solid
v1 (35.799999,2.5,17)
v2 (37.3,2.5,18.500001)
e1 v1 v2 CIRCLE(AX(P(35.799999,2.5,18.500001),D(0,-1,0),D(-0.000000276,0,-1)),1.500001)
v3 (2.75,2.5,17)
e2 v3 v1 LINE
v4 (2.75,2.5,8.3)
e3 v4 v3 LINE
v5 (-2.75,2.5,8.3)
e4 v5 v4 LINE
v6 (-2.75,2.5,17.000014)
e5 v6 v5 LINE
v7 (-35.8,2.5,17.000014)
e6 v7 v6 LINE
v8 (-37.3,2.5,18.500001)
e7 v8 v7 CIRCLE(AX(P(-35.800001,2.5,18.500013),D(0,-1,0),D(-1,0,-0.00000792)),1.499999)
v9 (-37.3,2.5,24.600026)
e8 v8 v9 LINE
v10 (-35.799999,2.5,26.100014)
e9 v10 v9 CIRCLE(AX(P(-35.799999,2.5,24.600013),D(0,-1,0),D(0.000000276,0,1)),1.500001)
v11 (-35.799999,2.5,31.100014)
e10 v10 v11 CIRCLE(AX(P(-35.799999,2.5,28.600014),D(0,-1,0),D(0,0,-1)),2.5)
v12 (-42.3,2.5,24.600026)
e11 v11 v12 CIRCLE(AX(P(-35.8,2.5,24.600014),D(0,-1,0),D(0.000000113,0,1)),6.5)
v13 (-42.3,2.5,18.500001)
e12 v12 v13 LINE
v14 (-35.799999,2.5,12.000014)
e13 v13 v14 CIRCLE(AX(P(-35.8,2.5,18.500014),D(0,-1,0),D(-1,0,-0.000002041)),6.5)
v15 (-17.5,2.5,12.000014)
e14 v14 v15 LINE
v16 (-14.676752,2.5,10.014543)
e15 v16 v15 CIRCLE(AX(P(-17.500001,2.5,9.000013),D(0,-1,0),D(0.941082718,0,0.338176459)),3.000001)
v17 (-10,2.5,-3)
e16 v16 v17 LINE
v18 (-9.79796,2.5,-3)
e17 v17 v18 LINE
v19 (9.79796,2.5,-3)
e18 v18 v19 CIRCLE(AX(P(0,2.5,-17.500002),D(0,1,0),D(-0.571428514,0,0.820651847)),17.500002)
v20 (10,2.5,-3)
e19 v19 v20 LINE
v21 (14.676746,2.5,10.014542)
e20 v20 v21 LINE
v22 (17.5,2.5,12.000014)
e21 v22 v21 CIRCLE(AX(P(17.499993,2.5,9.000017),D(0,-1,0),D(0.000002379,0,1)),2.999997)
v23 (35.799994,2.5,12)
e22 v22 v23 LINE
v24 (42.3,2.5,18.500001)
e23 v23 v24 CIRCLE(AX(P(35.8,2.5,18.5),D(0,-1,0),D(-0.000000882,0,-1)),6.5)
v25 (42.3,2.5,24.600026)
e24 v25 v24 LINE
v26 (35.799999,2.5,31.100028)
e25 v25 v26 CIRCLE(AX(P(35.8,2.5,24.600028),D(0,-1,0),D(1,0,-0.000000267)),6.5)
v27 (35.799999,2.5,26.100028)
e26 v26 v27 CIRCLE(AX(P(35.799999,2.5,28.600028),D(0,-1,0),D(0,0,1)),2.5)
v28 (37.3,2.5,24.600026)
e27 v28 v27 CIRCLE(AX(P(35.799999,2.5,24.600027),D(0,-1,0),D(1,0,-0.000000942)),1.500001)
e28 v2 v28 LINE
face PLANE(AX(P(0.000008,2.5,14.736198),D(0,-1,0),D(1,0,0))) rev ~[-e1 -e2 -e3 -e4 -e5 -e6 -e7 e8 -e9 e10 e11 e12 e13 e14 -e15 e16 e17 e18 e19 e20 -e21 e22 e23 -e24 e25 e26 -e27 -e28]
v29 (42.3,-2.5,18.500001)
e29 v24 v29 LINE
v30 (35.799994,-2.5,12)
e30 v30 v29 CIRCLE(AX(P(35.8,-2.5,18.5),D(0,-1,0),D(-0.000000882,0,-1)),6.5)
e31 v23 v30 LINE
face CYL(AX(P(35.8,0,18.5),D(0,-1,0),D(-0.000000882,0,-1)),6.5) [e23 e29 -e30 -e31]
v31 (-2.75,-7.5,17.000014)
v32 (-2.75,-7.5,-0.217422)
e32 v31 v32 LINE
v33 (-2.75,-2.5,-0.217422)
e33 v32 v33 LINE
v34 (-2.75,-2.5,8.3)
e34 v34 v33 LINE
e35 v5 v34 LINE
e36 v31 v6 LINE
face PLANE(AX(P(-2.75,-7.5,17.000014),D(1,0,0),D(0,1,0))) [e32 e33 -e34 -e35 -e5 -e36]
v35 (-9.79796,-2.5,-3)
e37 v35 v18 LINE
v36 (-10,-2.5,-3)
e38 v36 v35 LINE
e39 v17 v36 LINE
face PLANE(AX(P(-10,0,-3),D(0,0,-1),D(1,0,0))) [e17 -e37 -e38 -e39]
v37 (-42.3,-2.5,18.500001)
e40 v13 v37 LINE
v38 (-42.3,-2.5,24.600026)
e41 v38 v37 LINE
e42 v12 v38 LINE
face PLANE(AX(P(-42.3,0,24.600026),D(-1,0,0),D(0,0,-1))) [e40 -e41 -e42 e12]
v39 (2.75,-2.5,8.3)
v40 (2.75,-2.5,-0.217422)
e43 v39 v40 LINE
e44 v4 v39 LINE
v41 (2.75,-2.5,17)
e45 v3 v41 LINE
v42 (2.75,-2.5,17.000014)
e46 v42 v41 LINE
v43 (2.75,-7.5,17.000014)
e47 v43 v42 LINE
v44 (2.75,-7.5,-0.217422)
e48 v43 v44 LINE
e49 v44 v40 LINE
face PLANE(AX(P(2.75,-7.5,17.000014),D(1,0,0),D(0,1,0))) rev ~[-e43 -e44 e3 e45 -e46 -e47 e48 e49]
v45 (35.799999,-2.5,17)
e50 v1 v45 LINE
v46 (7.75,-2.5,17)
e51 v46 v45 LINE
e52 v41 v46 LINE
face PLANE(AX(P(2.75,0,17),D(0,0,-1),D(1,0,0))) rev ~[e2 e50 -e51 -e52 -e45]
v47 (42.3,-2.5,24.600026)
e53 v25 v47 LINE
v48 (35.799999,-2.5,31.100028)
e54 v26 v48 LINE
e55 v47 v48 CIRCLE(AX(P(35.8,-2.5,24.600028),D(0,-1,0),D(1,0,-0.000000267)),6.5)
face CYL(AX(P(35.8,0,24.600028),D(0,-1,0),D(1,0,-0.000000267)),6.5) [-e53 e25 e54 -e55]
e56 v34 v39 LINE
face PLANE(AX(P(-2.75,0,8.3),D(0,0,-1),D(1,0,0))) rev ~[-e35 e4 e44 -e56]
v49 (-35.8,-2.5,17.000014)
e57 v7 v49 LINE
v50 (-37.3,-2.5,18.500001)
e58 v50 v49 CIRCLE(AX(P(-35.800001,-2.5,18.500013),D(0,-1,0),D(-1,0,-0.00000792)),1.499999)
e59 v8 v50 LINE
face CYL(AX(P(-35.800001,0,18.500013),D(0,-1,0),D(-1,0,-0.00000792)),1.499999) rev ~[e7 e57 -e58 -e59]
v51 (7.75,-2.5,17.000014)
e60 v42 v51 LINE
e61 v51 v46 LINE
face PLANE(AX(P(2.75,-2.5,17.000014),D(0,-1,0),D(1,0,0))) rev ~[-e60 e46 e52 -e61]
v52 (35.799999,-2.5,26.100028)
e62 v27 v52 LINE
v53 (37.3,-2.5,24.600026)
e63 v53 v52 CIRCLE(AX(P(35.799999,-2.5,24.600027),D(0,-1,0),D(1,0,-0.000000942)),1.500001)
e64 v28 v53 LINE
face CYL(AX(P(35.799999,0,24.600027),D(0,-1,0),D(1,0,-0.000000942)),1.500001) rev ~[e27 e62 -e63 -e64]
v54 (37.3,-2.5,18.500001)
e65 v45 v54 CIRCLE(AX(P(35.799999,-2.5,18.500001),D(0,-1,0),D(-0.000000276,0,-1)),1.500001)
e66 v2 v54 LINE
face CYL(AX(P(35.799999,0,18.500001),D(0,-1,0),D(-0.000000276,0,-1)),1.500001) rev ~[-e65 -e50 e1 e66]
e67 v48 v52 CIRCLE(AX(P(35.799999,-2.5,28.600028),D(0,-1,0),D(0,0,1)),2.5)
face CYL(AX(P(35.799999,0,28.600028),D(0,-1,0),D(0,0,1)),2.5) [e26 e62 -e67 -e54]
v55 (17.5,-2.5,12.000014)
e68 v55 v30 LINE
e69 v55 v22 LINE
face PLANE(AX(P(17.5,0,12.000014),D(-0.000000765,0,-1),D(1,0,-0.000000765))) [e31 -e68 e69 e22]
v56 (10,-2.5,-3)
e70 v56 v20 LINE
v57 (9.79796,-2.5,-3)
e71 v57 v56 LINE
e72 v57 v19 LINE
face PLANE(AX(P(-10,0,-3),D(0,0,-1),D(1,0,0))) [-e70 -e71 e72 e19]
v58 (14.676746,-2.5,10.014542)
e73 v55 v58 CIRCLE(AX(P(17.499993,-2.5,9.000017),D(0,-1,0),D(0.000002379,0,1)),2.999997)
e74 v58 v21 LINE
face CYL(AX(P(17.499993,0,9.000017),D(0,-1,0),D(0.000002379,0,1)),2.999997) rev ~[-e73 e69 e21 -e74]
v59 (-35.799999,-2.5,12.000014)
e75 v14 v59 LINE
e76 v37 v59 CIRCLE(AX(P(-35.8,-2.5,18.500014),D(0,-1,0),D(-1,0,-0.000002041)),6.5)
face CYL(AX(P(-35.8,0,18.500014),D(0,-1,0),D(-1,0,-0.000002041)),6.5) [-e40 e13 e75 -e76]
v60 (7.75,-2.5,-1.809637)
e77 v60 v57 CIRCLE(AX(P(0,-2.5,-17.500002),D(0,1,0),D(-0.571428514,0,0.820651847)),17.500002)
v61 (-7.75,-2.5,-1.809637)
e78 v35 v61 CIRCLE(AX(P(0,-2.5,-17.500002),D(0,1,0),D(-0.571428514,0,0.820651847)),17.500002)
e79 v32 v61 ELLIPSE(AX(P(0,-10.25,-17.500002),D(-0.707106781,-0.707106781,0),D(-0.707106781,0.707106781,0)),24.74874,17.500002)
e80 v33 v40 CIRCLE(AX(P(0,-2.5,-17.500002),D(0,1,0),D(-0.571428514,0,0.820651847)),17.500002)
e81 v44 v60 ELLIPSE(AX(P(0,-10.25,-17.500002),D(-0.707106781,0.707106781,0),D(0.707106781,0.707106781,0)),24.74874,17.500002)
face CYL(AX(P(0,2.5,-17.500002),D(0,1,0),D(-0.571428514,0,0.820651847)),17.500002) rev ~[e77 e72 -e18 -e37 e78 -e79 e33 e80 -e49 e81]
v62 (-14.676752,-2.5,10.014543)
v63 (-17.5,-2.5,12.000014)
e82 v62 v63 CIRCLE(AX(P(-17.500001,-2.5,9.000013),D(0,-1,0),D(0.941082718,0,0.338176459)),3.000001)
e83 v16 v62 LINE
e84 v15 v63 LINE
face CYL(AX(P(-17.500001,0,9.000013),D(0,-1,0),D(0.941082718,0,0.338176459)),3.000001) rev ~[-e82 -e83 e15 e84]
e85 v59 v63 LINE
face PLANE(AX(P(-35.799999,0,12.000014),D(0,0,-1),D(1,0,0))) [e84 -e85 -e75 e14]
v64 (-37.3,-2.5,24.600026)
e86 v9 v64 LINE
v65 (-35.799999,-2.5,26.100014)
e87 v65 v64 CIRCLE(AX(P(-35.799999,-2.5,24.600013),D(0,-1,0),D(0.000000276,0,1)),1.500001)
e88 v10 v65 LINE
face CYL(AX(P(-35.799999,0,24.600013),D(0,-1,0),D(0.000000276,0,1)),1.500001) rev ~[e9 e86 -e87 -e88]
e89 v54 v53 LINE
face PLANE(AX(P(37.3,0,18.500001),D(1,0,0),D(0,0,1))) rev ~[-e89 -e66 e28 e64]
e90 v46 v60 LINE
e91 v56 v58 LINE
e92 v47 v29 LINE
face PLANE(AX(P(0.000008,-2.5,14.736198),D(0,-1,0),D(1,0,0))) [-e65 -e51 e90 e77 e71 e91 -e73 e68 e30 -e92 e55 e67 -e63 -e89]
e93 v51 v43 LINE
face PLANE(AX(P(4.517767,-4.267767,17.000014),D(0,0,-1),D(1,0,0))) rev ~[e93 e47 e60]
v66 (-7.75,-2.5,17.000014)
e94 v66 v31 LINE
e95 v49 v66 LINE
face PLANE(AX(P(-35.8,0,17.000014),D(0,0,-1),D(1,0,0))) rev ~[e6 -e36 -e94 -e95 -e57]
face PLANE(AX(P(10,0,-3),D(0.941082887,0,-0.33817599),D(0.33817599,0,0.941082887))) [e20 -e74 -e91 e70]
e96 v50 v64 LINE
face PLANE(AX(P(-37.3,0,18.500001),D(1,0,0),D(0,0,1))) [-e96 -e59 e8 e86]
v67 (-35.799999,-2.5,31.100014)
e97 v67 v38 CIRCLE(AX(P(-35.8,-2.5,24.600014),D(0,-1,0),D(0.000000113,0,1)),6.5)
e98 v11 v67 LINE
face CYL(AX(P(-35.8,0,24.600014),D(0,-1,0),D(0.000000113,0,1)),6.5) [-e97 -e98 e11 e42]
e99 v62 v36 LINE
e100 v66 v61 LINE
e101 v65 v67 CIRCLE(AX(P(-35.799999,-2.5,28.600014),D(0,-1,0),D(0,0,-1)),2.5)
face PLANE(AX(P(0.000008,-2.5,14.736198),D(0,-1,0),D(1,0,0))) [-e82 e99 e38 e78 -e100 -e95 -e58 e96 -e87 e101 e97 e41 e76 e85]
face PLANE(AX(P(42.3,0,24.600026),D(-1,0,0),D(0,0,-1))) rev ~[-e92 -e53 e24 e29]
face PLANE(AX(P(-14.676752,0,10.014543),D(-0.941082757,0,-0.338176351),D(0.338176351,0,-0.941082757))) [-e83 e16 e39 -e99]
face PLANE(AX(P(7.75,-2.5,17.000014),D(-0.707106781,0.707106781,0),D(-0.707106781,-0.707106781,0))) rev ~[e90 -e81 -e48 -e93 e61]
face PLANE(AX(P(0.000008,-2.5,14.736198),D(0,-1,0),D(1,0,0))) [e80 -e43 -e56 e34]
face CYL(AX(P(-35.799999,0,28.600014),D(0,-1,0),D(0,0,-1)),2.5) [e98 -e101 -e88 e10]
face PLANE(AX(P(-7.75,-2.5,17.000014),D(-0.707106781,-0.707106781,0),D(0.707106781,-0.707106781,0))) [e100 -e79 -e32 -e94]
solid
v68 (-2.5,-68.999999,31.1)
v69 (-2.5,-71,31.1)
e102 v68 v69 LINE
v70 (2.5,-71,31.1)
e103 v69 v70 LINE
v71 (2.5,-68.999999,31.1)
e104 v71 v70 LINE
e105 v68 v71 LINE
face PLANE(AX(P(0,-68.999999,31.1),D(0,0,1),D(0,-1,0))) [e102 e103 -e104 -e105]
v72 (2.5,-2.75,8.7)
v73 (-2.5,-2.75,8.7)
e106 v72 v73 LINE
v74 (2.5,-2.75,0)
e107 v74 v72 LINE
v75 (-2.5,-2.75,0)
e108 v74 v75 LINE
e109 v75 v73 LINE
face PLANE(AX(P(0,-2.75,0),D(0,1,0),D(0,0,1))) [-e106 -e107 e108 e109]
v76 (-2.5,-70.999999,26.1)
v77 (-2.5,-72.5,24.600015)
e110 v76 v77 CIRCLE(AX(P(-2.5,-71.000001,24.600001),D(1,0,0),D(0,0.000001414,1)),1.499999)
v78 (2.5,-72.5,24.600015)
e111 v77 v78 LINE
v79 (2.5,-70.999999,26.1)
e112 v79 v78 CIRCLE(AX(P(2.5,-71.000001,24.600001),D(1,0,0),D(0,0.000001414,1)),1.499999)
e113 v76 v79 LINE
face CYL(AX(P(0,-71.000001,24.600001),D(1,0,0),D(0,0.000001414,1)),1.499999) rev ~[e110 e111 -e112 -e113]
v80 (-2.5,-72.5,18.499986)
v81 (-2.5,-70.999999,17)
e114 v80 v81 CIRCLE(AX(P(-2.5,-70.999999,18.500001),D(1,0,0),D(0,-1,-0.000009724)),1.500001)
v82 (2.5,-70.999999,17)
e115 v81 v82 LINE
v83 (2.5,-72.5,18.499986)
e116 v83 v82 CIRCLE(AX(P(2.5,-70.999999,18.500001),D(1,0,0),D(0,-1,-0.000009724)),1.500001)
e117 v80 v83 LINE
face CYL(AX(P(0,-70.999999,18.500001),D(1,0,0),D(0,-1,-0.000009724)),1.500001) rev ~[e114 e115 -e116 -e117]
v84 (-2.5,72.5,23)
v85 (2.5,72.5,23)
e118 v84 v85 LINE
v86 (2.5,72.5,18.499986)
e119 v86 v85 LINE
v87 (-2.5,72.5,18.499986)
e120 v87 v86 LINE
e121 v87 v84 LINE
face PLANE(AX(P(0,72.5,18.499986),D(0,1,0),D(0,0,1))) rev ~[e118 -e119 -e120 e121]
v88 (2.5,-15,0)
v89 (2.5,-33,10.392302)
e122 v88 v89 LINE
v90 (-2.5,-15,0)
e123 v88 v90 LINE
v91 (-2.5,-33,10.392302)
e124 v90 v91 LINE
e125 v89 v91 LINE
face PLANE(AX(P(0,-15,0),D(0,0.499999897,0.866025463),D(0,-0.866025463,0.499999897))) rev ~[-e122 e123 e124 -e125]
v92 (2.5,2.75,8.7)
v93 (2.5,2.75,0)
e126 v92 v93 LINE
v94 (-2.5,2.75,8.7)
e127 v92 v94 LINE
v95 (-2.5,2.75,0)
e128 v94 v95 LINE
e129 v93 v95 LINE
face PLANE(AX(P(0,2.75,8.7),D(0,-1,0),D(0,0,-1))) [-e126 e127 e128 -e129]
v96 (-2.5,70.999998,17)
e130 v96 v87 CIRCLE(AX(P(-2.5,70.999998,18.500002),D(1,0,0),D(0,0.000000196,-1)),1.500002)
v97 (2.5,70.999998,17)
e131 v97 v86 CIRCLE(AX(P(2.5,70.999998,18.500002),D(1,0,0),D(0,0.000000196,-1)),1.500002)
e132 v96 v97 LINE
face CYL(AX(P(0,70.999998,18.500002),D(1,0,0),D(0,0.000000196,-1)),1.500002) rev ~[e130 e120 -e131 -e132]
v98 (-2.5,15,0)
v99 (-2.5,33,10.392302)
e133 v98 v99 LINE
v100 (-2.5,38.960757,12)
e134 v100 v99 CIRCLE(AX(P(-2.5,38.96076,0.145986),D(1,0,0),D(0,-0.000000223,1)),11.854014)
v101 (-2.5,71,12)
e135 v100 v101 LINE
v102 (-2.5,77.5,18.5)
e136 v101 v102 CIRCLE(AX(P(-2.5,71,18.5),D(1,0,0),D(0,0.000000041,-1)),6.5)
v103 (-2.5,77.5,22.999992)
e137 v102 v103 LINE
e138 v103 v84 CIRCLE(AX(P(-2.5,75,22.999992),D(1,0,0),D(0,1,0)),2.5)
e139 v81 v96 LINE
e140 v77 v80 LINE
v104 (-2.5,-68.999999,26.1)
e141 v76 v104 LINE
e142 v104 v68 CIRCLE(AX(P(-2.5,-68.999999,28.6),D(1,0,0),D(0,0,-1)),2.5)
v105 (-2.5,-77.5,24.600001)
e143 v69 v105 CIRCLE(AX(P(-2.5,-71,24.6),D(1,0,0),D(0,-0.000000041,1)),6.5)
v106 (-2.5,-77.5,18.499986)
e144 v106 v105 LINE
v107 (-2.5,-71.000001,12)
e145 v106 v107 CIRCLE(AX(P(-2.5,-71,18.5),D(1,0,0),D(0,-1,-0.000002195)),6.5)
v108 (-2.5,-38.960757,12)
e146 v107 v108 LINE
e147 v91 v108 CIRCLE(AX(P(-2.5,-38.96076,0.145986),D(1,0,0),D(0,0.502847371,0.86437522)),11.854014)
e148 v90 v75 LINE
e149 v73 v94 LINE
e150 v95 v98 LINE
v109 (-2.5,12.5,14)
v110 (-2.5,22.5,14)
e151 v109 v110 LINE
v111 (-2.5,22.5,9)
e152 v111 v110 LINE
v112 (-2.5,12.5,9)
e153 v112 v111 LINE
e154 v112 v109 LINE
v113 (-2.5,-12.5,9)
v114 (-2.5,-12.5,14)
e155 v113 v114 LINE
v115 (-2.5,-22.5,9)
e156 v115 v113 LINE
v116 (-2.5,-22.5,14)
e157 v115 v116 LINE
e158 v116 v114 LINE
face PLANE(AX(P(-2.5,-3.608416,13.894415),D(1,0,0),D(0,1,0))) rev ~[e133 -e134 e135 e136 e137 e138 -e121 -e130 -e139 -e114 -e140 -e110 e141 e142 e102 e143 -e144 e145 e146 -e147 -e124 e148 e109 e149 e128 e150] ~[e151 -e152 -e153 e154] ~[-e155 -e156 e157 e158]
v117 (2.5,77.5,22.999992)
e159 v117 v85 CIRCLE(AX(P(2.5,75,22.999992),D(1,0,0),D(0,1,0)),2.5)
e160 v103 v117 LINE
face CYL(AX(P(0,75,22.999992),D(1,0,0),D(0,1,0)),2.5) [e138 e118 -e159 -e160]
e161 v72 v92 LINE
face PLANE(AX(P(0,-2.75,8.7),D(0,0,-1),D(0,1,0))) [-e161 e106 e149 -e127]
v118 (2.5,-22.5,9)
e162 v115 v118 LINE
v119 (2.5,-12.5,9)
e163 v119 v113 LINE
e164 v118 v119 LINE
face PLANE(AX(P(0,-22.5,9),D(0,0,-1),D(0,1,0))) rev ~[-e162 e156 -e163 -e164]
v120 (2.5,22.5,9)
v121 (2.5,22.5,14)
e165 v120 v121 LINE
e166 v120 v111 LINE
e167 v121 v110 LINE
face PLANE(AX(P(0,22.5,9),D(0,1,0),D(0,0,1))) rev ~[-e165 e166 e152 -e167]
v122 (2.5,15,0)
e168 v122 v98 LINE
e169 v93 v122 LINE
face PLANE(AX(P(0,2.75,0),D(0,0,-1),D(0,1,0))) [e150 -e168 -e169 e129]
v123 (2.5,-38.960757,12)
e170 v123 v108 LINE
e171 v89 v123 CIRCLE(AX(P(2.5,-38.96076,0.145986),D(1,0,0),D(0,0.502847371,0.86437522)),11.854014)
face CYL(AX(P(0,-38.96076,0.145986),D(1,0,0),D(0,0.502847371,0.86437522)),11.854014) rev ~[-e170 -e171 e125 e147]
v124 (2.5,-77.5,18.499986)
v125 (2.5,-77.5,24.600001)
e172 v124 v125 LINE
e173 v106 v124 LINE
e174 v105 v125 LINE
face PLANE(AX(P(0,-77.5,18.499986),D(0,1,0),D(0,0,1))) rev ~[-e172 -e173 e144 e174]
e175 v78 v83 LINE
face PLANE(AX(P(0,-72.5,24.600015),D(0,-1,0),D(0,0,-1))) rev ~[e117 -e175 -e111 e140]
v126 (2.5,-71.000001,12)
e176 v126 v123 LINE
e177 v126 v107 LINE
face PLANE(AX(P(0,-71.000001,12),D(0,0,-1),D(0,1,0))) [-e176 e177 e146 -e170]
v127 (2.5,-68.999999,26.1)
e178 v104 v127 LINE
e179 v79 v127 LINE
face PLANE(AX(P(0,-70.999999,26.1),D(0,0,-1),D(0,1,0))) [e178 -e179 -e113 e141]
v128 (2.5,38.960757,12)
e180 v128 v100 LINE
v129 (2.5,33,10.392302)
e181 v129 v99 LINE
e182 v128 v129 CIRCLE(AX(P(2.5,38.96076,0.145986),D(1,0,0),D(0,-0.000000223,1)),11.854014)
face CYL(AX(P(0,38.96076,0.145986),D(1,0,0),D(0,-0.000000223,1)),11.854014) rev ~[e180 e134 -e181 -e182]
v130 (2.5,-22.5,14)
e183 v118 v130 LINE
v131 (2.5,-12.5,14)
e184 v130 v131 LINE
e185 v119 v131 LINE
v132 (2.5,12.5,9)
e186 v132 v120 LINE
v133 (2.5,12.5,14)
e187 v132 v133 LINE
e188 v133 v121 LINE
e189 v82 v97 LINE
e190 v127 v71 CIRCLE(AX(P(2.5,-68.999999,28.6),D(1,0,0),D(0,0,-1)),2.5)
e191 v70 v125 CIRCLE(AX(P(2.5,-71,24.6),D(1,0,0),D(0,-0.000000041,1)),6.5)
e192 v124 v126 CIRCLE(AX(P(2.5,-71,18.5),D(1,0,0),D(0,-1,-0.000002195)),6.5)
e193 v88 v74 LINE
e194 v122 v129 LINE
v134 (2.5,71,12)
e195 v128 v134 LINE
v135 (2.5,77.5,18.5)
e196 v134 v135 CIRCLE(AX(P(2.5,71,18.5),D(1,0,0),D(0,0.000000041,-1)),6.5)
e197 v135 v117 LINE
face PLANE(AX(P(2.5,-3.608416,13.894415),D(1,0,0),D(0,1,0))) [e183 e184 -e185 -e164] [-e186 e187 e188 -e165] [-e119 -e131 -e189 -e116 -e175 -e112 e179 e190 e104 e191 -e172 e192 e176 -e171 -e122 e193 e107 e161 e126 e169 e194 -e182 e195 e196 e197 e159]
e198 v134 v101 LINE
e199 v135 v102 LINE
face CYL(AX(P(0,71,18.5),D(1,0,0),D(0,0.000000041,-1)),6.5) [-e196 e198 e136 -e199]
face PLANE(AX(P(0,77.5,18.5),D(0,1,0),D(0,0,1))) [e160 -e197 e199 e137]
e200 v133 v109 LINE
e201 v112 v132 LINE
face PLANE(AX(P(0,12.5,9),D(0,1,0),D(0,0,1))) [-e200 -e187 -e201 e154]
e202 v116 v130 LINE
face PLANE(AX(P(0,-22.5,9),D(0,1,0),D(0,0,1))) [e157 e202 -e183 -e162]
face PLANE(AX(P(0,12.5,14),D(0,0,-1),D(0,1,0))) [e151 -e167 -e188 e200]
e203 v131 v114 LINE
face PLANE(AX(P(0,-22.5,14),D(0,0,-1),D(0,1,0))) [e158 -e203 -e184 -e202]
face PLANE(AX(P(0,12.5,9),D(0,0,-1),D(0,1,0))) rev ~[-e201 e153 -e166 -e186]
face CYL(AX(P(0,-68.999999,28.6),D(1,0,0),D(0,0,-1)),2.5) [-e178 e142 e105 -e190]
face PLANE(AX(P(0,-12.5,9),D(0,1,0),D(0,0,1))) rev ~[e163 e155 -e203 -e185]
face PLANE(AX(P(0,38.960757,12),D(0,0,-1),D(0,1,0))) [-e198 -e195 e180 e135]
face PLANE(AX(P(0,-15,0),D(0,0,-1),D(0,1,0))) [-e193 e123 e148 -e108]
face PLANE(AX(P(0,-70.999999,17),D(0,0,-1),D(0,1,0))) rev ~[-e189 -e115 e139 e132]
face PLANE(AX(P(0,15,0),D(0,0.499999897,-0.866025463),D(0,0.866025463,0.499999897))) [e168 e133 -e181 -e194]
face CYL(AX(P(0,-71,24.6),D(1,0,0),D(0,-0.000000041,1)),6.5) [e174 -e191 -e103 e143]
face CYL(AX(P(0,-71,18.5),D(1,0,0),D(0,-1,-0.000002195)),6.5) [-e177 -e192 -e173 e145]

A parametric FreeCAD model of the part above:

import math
import FreeCAD as App
import Part
import Sketcher
from FreeCAD import Vector
Q = App.Units.Quantity

doc = App.newDocument("Part")
body = doc.addObject("PartDesign::Body", "Body")

sketch1 = body.newObject("Sketcher::SketchObject", "Sketch")
sketch1.AttachmentSupport = (doc.getObject("YZ_Plane"), [""])
sketch1.MapMode = "FlatFace"
sketch1.addGeometry(Part.LineSegment(Vector(77.5, 18.5, 0), Vector(77.5, 23, 0)), False)
sketch1.addGeometry(Part.ArcOfCircle(Part.Circle(Vector(75, 23, 0), Vector(0, 0, 1), 2.5), math.radians(0), math.radians(180)), False)
sketch1.addGeometry(Part.LineSegment(Vector(72.5, 23, 0), Vector(72.5, 18.5, 0)), False)
sketch1.addGeometry(Part.ArcOfCircle(Part.Circle(Vector(71, 18.5, 0), Vector(0, 0, 1), 1.5), math.radians(-90), math.radians(0)), False)
sketch1.addGeometry(Part.LineSegment(Vector(71, 17, 0), Vector(-71, 17, 0)), False)
sketch1.addGeometry(Part.ArcOfCircle(Part.Circle(Vector(-71, 18.5, 0), Vector(0, 0, 1), 1.5), math.radians(-180), math.radians(-90)), False)
sketch1.addGeometry(Part.LineSegment(Vector(-72.5, 18.5, 0), Vector(-72.5, 24.6, 0)), False)
sketch1.addGeometry(Part.ArcOfCircle(Part.Circle(Vector(-71, 24.6, 0), Vector(0, 0, 1), 1.5), math.radians(90), math.radians(180)), False)
sketch1.addGeometry(Part.LineSegment(Vector(-71, 26.1, 0), Vector(-69, 26.1, 0)), False)
sketch1.addGeometry(Part.ArcOfCircle(Part.Circle(Vector(-69, 28.6, 0), Vector(0, 0, 1), 2.5), math.radians(-90), math.radians(90)), False)
sketch1.addGeometry(Part.LineSegment(Vector(-69, 31.1, 0), Vector(-71, 31.1, 0)), False)
sketch1.addGeometry(Part.ArcOfCircle(Part.Circle(Vector(-71, 24.6, 0), Vector(0, 0, 1), 6.5), math.radians(90), math.radians(180)), False)
sketch1.addGeometry(Part.LineSegment(Vector(-77.5, 24.6, 0), Vector(-77.5, 18.5, 0)), False)
sketch1.addGeometry(Part.ArcOfCircle(Part.Circle(Vector(-71, 18.5, 0), Vector(0, 0, 1), 6.5), math.radians(-180), math.radians(-90)), False)
sketch1.addGeometry(Part.LineSegment(Vector(-71, 12, 0), Vector(-39, 12, 0)), False)
sketch1.addGeometry(Part.ArcOfCircle(Part.Circle(Vector(-39, 0.1, 0), Vector(0, 0, 1), 11.9), math.radians(60), math.radians(90)), False)
sketch1.addGeometry(Part.LineSegment(Vector(-33, 10.4, 0), Vector(-15, 0, 0)), False)
sketch1.addGeometry(Part.LineSegment(Vector(-15, 0, 0), Vector(-2.8, 0, 0)), False)
sketch1.addGeometry(Part.LineSegment(Vector(-2.8, 0, 0), Vector(-2.8, 8.7, 0)), False)
sketch1.addGeometry(Part.LineSegment(Vector(-2.8, 8.7, 0), Vector(2.8, 8.7, 0)), False)
sketch1.addGeometry(Part.LineSegment(Vector(2.8, 8.7, 0), Vector(2.8, 0, 0)), False)
sketch1.addGeometry(Part.LineSegment(Vector(2.8, 0, 0), Vector(15, 0, 0)), False)
sketch1.addGeometry(Part.LineSegment(Vector(15, 0, 0), Vector(33, 10.4, 0)), False)
sketch1.addGeometry(Part.ArcOfCircle(Part.Circle(Vector(39, 0.1, 0), Vector(0, 0, 1), 11.9), math.radians(90), math.radians(120)), False)
sketch1.addGeometry(Part.LineSegment(Vector(39, 12, 0), Vector(71, 12, 0)), False)
sketch1.addGeometry(Part.ArcOfCircle(Part.Circle(Vector(71, 18.5, 0), Vector(0, 0, 1), 6.5), math.radians(-90), math.radians(0)), False)
sketch1.addGeometry(Part.LineSegment(Vector(-12.5, 9, 0), Vector(-22.5, 9, 0)), False)
sketch1.addGeometry(Part.LineSegment(Vector(-22.5, 9, 0), Vector(-22.5, 14, 0)), False)
sketch1.addGeometry(Part.LineSegment(Vector(-22.5, 14, 0), Vector(-12.5, 14, 0)), False)
sketch1.addGeometry(Part.LineSegment(Vector(-12.5, 14, 0), Vector(-12.5, 9, 0)), False)
sketch1.addGeometry(Part.LineSegment(Vector(22.5, 9, 0), Vector(12.5, 9, 0)), False)
sketch1.addGeometry(Part.LineSegment(Vector(12.5, 9, 0), Vector(12.5, 14, 0)), False)
sketch1.addGeometry(Part.LineSegment(Vector(12.5, 14, 0), Vector(22.5, 14, 0)), False)
sketch1.addGeometry(Part.LineSegment(Vector(22.5, 14, 0), Vector(22.5, 9, 0)), False)
sketch1.addConstraint(Sketcher.Constraint("Tangent", 0, 2, 1, 1))
sketch1.addConstraint(Sketcher.Constraint("Coincident", 1, 2, 2, 1))
sketch1.addConstraint(Sketcher.Constraint("Coincident", 2, 2, 3, 2))
sketch1.addConstraint(Sketcher.Constraint("Tangent", 3, 1, 4, 1))
sketch1.addConstraint(Sketcher.Constraint("Tangent", 4, 2, 5, 2))
sketch1.addConstraint(Sketcher.Constraint("Coincident", 5, 1, 6, 1))
sketch1.addConstraint(Sketcher.Constraint("Coincident", 6, 2, 7, 2))
sketch1.addConstraint(Sketcher.Constraint("Tangent", 7, 1, 8, 1))
sketch1.addConstraint(Sketcher.Constraint("Tangent", 8, 2, 9, 1))
sketch1.addConstraint(Sketcher.Constraint("Tangent", 9, 2, 10, 1))
sketch1.addConstraint(Sketcher.Constraint("Tangent", 10, 2, 11, 1))
sketch1.addConstraint(Sketcher.Constraint("Tangent", 11, 2, 12, 1))
sketch1.addConstraint(Sketcher.Constraint("Coincident", 12, 2, 13, 1))
sketch1.addConstraint(Sketcher.Constraint("Tangent", 13, 2, 14, 1))
sketch1.addConstraint(Sketcher.Constraint("Tangent", 14, 2, 15, 2))
sketch1.addConstraint(Sketcher.Constraint("Coincident", 15, 1, 16, 1))
sketch1.addConstraint(Sketcher.Constraint("Coincident", 16, 2, 17, 1))
sketch1.addConstraint(Sketcher.Constraint("Coincident", 17, 2, 18, 1))
sketch1.addConstraint(Sketcher.Constraint("Coincident", 18, 2, 19, 1))
sketch1.addConstraint(Sketcher.Constraint("Coincident", 19, 2, 20, 1))
sketch1.addConstraint(Sketcher.Constraint("Coincident", 20, 2, 21, 1))
sketch1.addConstraint(Sketcher.Constraint("Coincident", 21, 2, 22, 1))
sketch1.addConstraint(Sketcher.Constraint("Coincident", 22, 2, 23, 2))
sketch1.addConstraint(Sketcher.Constraint("Tangent", 23, 1, 24, 1))
sketch1.addConstraint(Sketcher.Constraint("Tangent", 24, 2, 25, 1))
sketch1.addConstraint(Sketcher.Constraint("Tangent", 25, 2, 0, 1))
sketch1.addConstraint(Sketcher.Constraint("Coincident", 26, 2, 27, 1))
sketch1.addConstraint(Sketcher.Constraint("Coincident", 27, 2, 28, 1))
sketch1.addConstraint(Sketcher.Constraint("Coincident", 28, 2, 29, 1))
sketch1.addConstraint(Sketcher.Constraint("Coincident", 29, 2, 26, 1))
sketch1.addConstraint(Sketcher.Constraint("Coincident", 30, 2, 31, 1))
sketch1.addConstraint(Sketcher.Constraint("Coincident", 31, 2, 32, 1))
sketch1.addConstraint(Sketcher.Constraint("Coincident", 32, 2, 33, 1))
sketch1.addConstraint(Sketcher.Constraint("Coincident", 33, 2, 30, 1))
sketch1.addConstraint(Sketcher.Constraint("Vertical", 0))
sketch1.addConstraint(Sketcher.Constraint("Vertical", 2))
sketch1.addConstraint(Sketcher.Constraint("Horizontal", 4))
sketch1.addConstraint(Sketcher.Constraint("Vertical", 6))
sketch1.addConstraint(Sketcher.Constraint("Horizontal", 8))
sketch1.addConstraint(Sketcher.Constraint("Horizontal", 10))
sketch1.addConstraint(Sketcher.Constraint("Vertical", 12))
sketch1.addConstraint(Sketcher.Constraint("Horizontal", 14))
sketch1.addConstraint(Sketcher.Constraint("Horizontal", 17))
sketch1.addConstraint(Sketcher.Constraint("Vertical", 18))
sketch1.addConstraint(Sketcher.Constraint("Horizontal", 19))
sketch1.addConstraint(Sketcher.Constraint("Vertical", 20))
sketch1.addConstraint(Sketcher.Constraint("Horizontal", 21))
sketch1.addConstraint(Sketcher.Constraint("Horizontal", 24))
sketch1.addConstraint(Sketcher.Constraint("Horizontal", 26))
sketch1.addConstraint(Sketcher.Constraint("Vertical", 27))
sketch1.addConstraint(Sketcher.Constraint("Horizontal", 28))
sketch1.addConstraint(Sketcher.Constraint("Vertical", 29))
sketch1.addConstraint(Sketcher.Constraint("Horizontal", 30))
sketch1.addConstraint(Sketcher.Constraint("Vertical", 31))
sketch1.addConstraint(Sketcher.Constraint("Horizontal", 32))
sketch1.addConstraint(Sketcher.Constraint("Vertical", 33))
sketch1.addConstraint(Sketcher.Constraint("Coincident", 11, 3, 7, 3))
sketch1.addConstraint(Sketcher.Constraint("Coincident", 13, 3, 5, 3))
sketch1.addConstraint(Sketcher.Constraint("Coincident", 25, 3, 3, 3))
sketch1.addConstraint(Sketcher.Constraint("Equal", 3, 5))
sketch1.addConstraint(Sketcher.Constraint("Equal", 5, 7))
sketch1.addConstraint(Sketcher.Constraint("Equal", 1, 9))
sketch1.addConstraint(Sketcher.Constraint("Equal", 15, 23))
sketch1.addConstraint(Sketcher.Constraint("Symmetric", 17, 2, 20, 2, -1, 1))
sketch1.addConstraint(Sketcher.Constraint("Symmetric", 2, 2, 5, 1, -2))
sketch1.addConstraint(Sketcher.Constraint("Symmetric", 16, 2, 21, 2, -2))
sketch1.addConstraint(Sketcher.Constraint("Symmetric", 15, 1, 22, 2, -2))
sketch1.addConstraint(Sketcher.Constraint("Symmetric", 29, 2, 30, 2, -2))
sketch1.addConstraint(Sketcher.Constraint("Symmetric", 27, 2, 32, 2, -2))
sketch1.addConstraint(Sketcher.Constraint("Horizontal", 5, 1, 12, 2))
sketch1.addConstraint(Sketcher.Constraint("Radius", 1, 2.5))
sketch1.addConstraint(Sketcher.Constraint("Radius", 5, 1.500001))
sketch1.addConstraint(Sketcher.Constraint("DistanceX", 8, 1, 8, 2, 2.0))
sketch1.addConstraint(Sketcher.Constraint("DistanceX", 26, 2, 26, 1, 10.0))
sketch1.addConstraint(Sketcher.Constraint("DistanceY", 27, 1, 27, 2, 5.0))
sketch1.addConstraint(Sketcher.Constraint("Angle", 16, Q("-29.999993 deg")))
sketch1.addConstraint(Sketcher.Constraint("DistanceX", 19, 1, 19, 2, 5.5))
sketch1.addConstraint(Sketcher.Constraint("DistanceY", 18, 1, 18, 2, 8.7))
sketch1.addConstraint(Sketcher.Constraint("DistanceX", -1, 1, 1, 3, 75.0))
sketch1.addConstraint(Sketcher.Constraint("DistanceY", -1, 1, 1, 2, 23.0))
sketch1.addConstraint(Sketcher.Constraint("DistanceY", -1, 1, 3, 1, 17.0))
sketch1.addConstraint(Sketcher.Constraint("DistanceX", 15, 1, -1, 1, 33.0))
sketch1.addConstraint(Sketcher.Constraint("DistanceX", 16, 2, -1, 1, 15.0))
sketch1.addConstraint(Sketcher.Constraint("DistanceY", -1, 1, 26, 2, 9.0))
sketch1.addConstraint(Sketcher.Constraint("DistanceY", -1, 1, 7, 3, 24.600001))
sketch1.addConstraint(Sketcher.Constraint("DistanceX", 26, 2, -1, 1, 22.5))
sketch1.addConstraint(Sketcher.Constraint("Radius", 15, 11.854014))
sketch1.addConstraint(Sketcher.Constraint("DistanceY", 0, 1, 0, 2, 4.499992))
sketch1.addConstraint(Sketcher.Constraint("DistanceY", 6, 1, 6, 2, 6.100029))
sketch1.addConstraint(Sketcher.Constraint("DistanceY", 2, 2, 2, 1, 4.500014))
pad1 = body.newObject("PartDesign::Pad", "Pad")
pad1.Profile = sketch1
pad1.Length = 5
pad1.Midplane = True
body2 = doc.addObject("PartDesign::Body", "Body001")
body2.AllowCompound = True

sketch2 = body2.newObject("Sketcher::SketchObject", "Sketch001")
sketch2.AttachmentSupport = (doc.getObject("XZ_Plane001"), [""])
sketch2.MapMode = "FlatFace"
sketch2.addGeometry(Part.LineSegment(Vector(17.5, 12.000014, 0), Vector(35.799994, 12, 0)), False)
sketch2.addGeometry(Part.ArcOfCircle(Part.Circle(Vector(35.8, 18.5, 0), Vector(0, 0, 1), 6.5), math.radians(-90.000051), math.radians(0.000006)), False)
sketch2.addGeometry(Part.LineSegment(Vector(42.3, 18.500001, 0), Vector(42.3, 24.600026, 0)), False)
sketch2.addGeometry(Part.ArcOfCircle(Part.Circle(Vector(35.8, 24.600028, 0), Vector(0, 0, 1), 6.5), math.radians(-0.000015), math.radians(90.000006)), False)
sketch2.addGeometry(Part.ArcOfCircle(Part.Circle(Vector(35.799999, 28.600028, 0), Vector(0, 0, 1), 2.5), math.radians(90), math.radians(270)), False)
sketch2.addGeometry(Part.ArcOfCircle(Part.Circle(Vector(35.799999, 24.600027, 0), Vector(0, 0, 1), 1.500001), math.radians(-0.000054), math.radians(90.000016)), False)
sketch2.addGeometry(Part.LineSegment(Vector(37.3, 24.600026, 0), Vector(37.3, 18.500001, 0)), False)
sketch2.addGeometry(Part.ArcOfCircle(Part.Circle(Vector(35.799999, 18.500001, 0), Vector(0, 0, 1), 1.500001), math.radians(-90.000016), math.radians(0.000016)), False)
sketch2.addGeometry(Part.LineSegment(Vector(35.799999, 17, 0), Vector(2.75, 17, 0)), False)
sketch2.addGeometry(Part.LineSegment(Vector(2.75, 17, 0), Vector(2.75, 8.3, 0)), False)
sketch2.addGeometry(Part.LineSegment(Vector(2.75, 8.3, 0), Vector(-2.75, 8.3, 0)), False)
sketch2.addGeometry(Part.LineSegment(Vector(-2.75, 8.3, 0), Vector(-2.75, 17.000014, 0)), False)
sketch2.addGeometry(Part.LineSegment(Vector(-2.75, 17.000014, 0), Vector(-35.8, 17.000014, 0)), False)
sketch2.addGeometry(Part.ArcOfCircle(Part.Circle(Vector(-35.800001, 18.500013, 0), Vector(0, 0, 1), 1.499999), math.radians(-179.999546), math.radians(-89.999957)), False)
sketch2.addGeometry(Part.LineSegment(Vector(-37.3, 18.500001, 0), Vector(-37.3, 24.600026, 0)), False)
sketch2.addGeometry(Part.ArcOfCircle(Part.Circle(Vector(-35.799999, 24.600013, 0), Vector(0, 0, 1), 1.500001), math.radians(89.999984), math.radians(179.999519)), False)
sketch2.addGeometry(Part.ArcOfCircle(Part.Circle(Vector(-35.799999, 28.600014, 0), Vector(0, 0, 1), 2.5), math.radians(-90), math.radians(90)), False)
sketch2.addGeometry(Part.ArcOfCircle(Part.Circle(Vector(-35.8, 24.600014, 0), Vector(0, 0, 1), 6.5), math.radians(89.999994), math.radians(179.999892)), False)
sketch2.addGeometry(Part.LineSegment(Vector(-42.3, 24.600026, 0), Vector(-42.3, 18.500001, 0)), False)
sketch2.addGeometry(Part.ArcOfCircle(Part.Circle(Vector(-35.8, 18.500014, 0), Vector(0, 0, 1), 6.5), math.radians(-179.999883), math.radians(-89.999994)), False)
sketch2.addGeometry(Part.LineSegment(Vector(-35.799999, 12.000014, 0), Vector(-17.5, 12.000014, 0)), False)
sketch2.addGeometry(Part.ArcOfCircle(Part.Circle(Vector(-17.500001, 9.000013, 0), Vector(0, 0, 1), 3.000001), math.radians(19.765813), math.radians(89.999987)), False)
sketch2.addGeometry(Part.LineSegment(Vector(-14.676752, 10.014543, 0), Vector(-10, -3, 0)), False)
sketch2.addGeometry(Part.LineSegment(Vector(-10, -3, 0), Vector(10, -3, 0)), False)
sketch2.addGeometry(Part.LineSegment(Vector(10, -3, 0), Vector(14.676746, 10.014542, 0)), False)
sketch2.addGeometry(Part.ArcOfCircle(Part.Circle(Vector(17.499993, 9.000017, 0), Vector(0, 0, 1), 2.999997), math.radians(89.999864), math.radians(160.234249)), False)
sketch2.addConstraint(Sketcher.Constraint("Coincident", 0, 2, 1, 1))
sketch2.addConstraint(Sketcher.Constraint("Coincident", 1, 2, 2, 1))
sketch2.addConstraint(Sketcher.Constraint("Coincident", 2, 2, 3, 1))
sketch2.addConstraint(Sketcher.Constraint("Coincident", 3, 2, 4, 1))
sketch2.addConstraint(Sketcher.Constraint("Coincident", 4, 2, 5, 2))
sketch2.addConstraint(Sketcher.Constraint("Coincident", 5, 1, 6, 1))
sketch2.addConstraint(Sketcher.Constraint("Coincident", 6, 2, 7, 2))
sketch2.addConstraint(Sketcher.Constraint("Coincident", 7, 1, 8, 1))
sketch2.addConstraint(Sketcher.Constraint("Coincident", 8, 2, 9, 1))
sketch2.addConstraint(Sketcher.Constraint("Coincident", 9, 2, 10, 1))
sketch2.addConstraint(Sketcher.Constraint("Coincident", 10, 2, 11, 1))
sketch2.addConstraint(Sketcher.Constraint("Coincident", 11, 2, 12, 1))
sketch2.addConstraint(Sketcher.Constraint("Coincident", 12, 2, 13, 2))
sketch2.addConstraint(Sketcher.Constraint("Coincident", 13, 1, 14, 1))
sketch2.addConstraint(Sketcher.Constraint("Coincident", 14, 2, 15, 2))
sketch2.addConstraint(Sketcher.Constraint("Coincident", 15, 1, 16, 1))
sketch2.addConstraint(Sketcher.Constraint("Coincident", 16, 2, 17, 1))
sketch2.addConstraint(Sketcher.Constraint("Coincident", 17, 2, 18, 1))
sketch2.addConstraint(Sketcher.Constraint("Coincident", 18, 2, 19, 1))
sketch2.addConstraint(Sketcher.Constraint("Coincident", 19, 2, 20, 1))
sketch2.addConstraint(Sketcher.Constraint("Coincident", 20, 2, 21, 2))
sketch2.addConstraint(Sketcher.Constraint("Coincident", 21, 1, 22, 1))
sketch2.addConstraint(Sketcher.Constraint("Coincident", 22, 2, 23, 1))
sketch2.addConstraint(Sketcher.Constraint("Coincident", 23, 2, 24, 1))
sketch2.addConstraint(Sketcher.Constraint("Coincident", 24, 2, 25, 2))
sketch2.addConstraint(Sketcher.Constraint("Coincident", 25, 1, 0, 1))
sketch2.addConstraint(Sketcher.Constraint("Vertical", 2))
sketch2.addConstraint(Sketcher.Constraint("Vertical", 6))
sketch2.addConstraint(Sketcher.Constraint("Horizontal", 8))
sketch2.addConstraint(Sketcher.Constraint("Vertical", 9))
sketch2.addConstraint(Sketcher.Constraint("Horizontal", 10))
sketch2.addConstraint(Sketcher.Constraint("Vertical", 11))
sketch2.addConstraint(Sketcher.Constraint("Horizontal", 12))
sketch2.addConstraint(Sketcher.Constraint("Vertical", 14))
sketch2.addConstraint(Sketcher.Constraint("Vertical", 18))
sketch2.addConstraint(Sketcher.Constraint("Horizontal", 20))
sketch2.addConstraint(Sketcher.Constraint("Horizontal", 23))
sketch2.addConstraint(Sketcher.Constraint("Coincident", 5, 3, 3, 3))
sketch2.addConstraint(Sketcher.Constraint("Coincident", 7, 3, 1, 3))
sketch2.addConstraint(Sketcher.Constraint("Coincident", 17, 3, 15, 3))
sketch2.addConstraint(Sketcher.Constraint("Coincident", 19, 3, 13, 3))
sketch2.addConstraint(Sketcher.Constraint("Radius", 21, 3.000001))
sketch2.addConstraint(Sketcher.Constraint("Radius", 1, 6.5))
sketch2.addConstraint(Sketcher.Constraint("Radius", 3, 6.5))
sketch2.addConstraint(Sketcher.Constraint("Radius", 4, 2.5))
sketch2.addConstraint(Sketcher.Constraint("Radius", 13, 1.499999))
sketch2.addConstraint(Sketcher.Constraint("Radius", 15, 1.500001))
sketch2.addConstraint(Sketcher.Constraint("Radius", 16, 2.5))
sketch2.addConstraint(Sketcher.Constraint("DistanceX", 23, 1, 23, 2, 20.0))
sketch2.addConstraint(Sketcher.Constraint("DistanceX", 10, 2, 10, 1, 5.5))
sketch2.addConstraint(Sketcher.Constraint("DistanceX", 20, 1, 20, 2, 18.299999))
sketch2.addConstraint(Sketcher.Constraint("DistanceY", 9, 2, 9, 1, 8.7))
sketch2.addConstraint(Sketcher.Constraint("DistanceY", -1, 1, 0, 2, 12.0))
sketch2.addConstraint(Sketcher.Constraint("DistanceX", 22, 2, -1, 1, 10.0))
sketch2.addConstraint(Sketcher.Constraint("DistanceY", 22, 2, -1, 1, 3.0))
sketch2.addConstraint(Sketcher.Constraint("DistanceY", 2, 2, 4, 3, 4.000002))
sketch2.addConstraint(Sketcher.Constraint("DistanceY", 5, 1, 4, 3, 4.000002))
sketch2.addConstraint(Sketcher.Constraint("DistanceX", 8, 2, 8, 1, 33.049999))
sketch2.addConstraint(Sketcher.Constraint("DistanceX", 12, 2, 12, 1, 33.05))
sketch2.addConstraint(Sketcher.Constraint("DistanceX", -1, 1, 1, 3, 35.8))
sketch2.addConstraint(Sketcher.Constraint("DistanceX", -1, 1, 4, 3, 35.799999))
sketch2.addConstraint(Sketcher.Constraint("DistanceX", 13, 3, -1, 1, 35.800001))
sketch2.addConstraint(Sketcher.Constraint("DistanceX", 16, 3, -1, 1, 35.799999))
sketch2.addConstraint(Sketcher.Constraint("DistanceX", 21, 3, -1, 1, 17.500001))
sketch2.addConstraint(Sketcher.Constraint("DistanceY", -1, 1, 1, 2, 18.500001))
sketch2.addConstraint(Sketcher.Constraint("DistanceX", -1, 1, 3, 2, 35.799999))
sketch2.addConstraint(Sketcher.Constraint("DistanceX", -1, 1, 4, 2, 35.799999))
sketch2.addConstraint(Sketcher.Constraint("DistanceY", -1, 1, 6, 2, 18.500001))
sketch2.addConstraint(Sketcher.Constraint("DistanceX", -1, 1, 7, 1, 35.799999))
sketch2.addConstraint(Sketcher.Constraint("DistanceY", -1, 1, 13, 1, 18.500001))
sketch2.addConstraint(Sketcher.Constraint("DistanceX", 15, 1, -1, 1, 35.799999))
sketch2.addConstraint(Sketcher.Constraint("DistanceX", 16, 2, -1, 1, 35.799999))
sketch2.addConstraint(Sketcher.Constraint("DistanceY", -1, 1, 18, 2, 18.500001))
sketch2.addConstraint(Sketcher.Constraint("DistanceX", 19, 2, -1, 1, 35.799999))
sketch2.addConstraint(Sketcher.Constraint("DistanceX", -1, 1, 25, 1, 17.5))
sketch2.addConstraint(Sketcher.Constraint("DistanceY", 13, 3, 15, 3, 6.100001))
sketch2.addConstraint(Sketcher.Constraint("Radius", 25, 2.999997))
sketch2.addConstraint(Sketcher.Constraint("Distance", 22, 13.829329))
sketch2.addConstraint(Sketcher.Constraint("DistanceY", 2, 1, 2, 2, 6.100025))
sketch2.addConstraint(Sketcher.Constraint("DistanceY", 11, 1, 11, 2, 8.700014))
sketch2.addConstraint(Sketcher.Constraint("DistanceY", 14, 1, 14, 2, 6.100025))
sketch2.addConstraint(Sketcher.Constraint("DistanceY", 18, 2, 18, 1, 6.100025))
sketch2.addConstraint(Sketcher.Constraint("DistanceY", 25, 3, 5, 3, 15.600011))
sketch2.addConstraint(Sketcher.Constraint("DistanceY", 9, 2, 24, 2, 1.714542))
sketch2.addConstraint(Sketcher.Constraint("Distance", 0, 18.299994))
sketch2.addConstraint(Sketcher.Constraint("Distance", 24, 13.829326))
pad2 = body2.newObject("PartDesign::Pad", "Pad001")
pad2.Profile = sketch2
pad2.Length = 5
pad2.Midplane = True

sketch3 = body2.newObject("Sketcher::SketchObject", "Sketch002")
sketch3.AttachmentSupport = (doc.getObject("XY_Plane001"), [""])
sketch3.MapMode = "FlatFace"
sketch3.AttachmentOffset = App.Placement(Vector(0, 0, 17.000014), App.Rotation())
sketch3.addGeometry(Part.LineSegment(Vector(3, -8, 0), Vector(8, -2, 0)), False)
sketch3.addGeometry(Part.LineSegment(Vector(8, -2, 0), Vector(3, -2, 0)), False)
sketch3.addGeometry(Part.LineSegment(Vector(3, -2, 0), Vector(3, -8, 0)), False)
sketch3.addGeometry(Part.LineSegment(Vector(-3, -8, 0), Vector(-3, -2, 0)), False)
sketch3.addGeometry(Part.LineSegment(Vector(-3, -2, 0), Vector(-8, -2, 0)), False)
sketch3.addGeometry(Part.LineSegment(Vector(-8, -2, 0), Vector(-3, -8, 0)), False)
sketch3.addConstraint(Sketcher.Constraint("Coincident", 0, 2, 1, 1))
sketch3.addConstraint(Sketcher.Constraint("Coincident", 1, 2, 2, 1))
sketch3.addConstraint(Sketcher.Constraint("Coincident", 2, 2, 0, 1))
sketch3.addConstraint(Sketcher.Constraint("Coincident", 3, 2, 4, 1))
sketch3.addConstraint(Sketcher.Constraint("Coincident", 4, 2, 5, 1))
sketch3.addConstraint(Sketcher.Constraint("Coincident", 5, 2, 3, 1))
sketch3.addConstraint(Sketcher.Constraint("Horizontal", 1))
sketch3.addConstraint(Sketcher.Constraint("Vertical", 2))
sketch3.addConstraint(Sketcher.Constraint("Vertical", 3))
sketch3.addConstraint(Sketcher.Constraint("Horizontal", 4))
sketch3.addConstraint(Sketcher.Constraint("Symmetric", 1, 2, 3, 2, -2))
sketch3.addConstraint(Sketcher.Constraint("Perpendicular", 0, 5))
sketch3.addConstraint(Sketcher.Constraint("Horizontal", 2, 2, 5, 2))
sketch3.addConstraint(Sketcher.Constraint("Equal", 1, 4))
sketch3.addConstraint(Sketcher.Constraint("DistanceX", 1, 2, 1, 1, 5.0))
sketch3.addConstraint(Sketcher.Constraint("DistanceY", 0, 2, -1, 1, 2.5))
sketch3.addConstraint(Sketcher.Constraint("DistanceX", 3, 2, 1, 2, 5.5))
pad3 = body2.newObject("PartDesign::Pad", "Pad002")
pad3.Profile = sketch3
pad3.Length = 20
pad3.Reversed = True

sketch4 = body2.newObject("Sketcher::SketchObject", "Sketch003")
sketch4.AttachmentSupport = (doc.getObject("XZ_Plane001"), [""])
sketch4.MapMode = "FlatFace"
sketch4.AttachmentOffset = App.Placement(Vector(0, 0, -2.5), App.Rotation())
sketch4.addGeometry(Part.ArcOfCircle(Part.Circle(Vector(0, -18, 0), Vector(0, 0, 1), 18), math.radians(55), math.radians(125)), False)
sketch4.addGeometry(Part.LineSegment(Vector(10, -3, 0), Vector(-10, -3, 0)), False)
sketch4.addConstraint(Sketcher.Constraint("Coincident", 0, 1, 1, 1))
sketch4.addConstraint(Sketcher.Constraint("Coincident", 1, 2, 0, 2))
sketch4.addConstraint(Sketcher.Constraint("Horizontal", 1))
sketch4.addConstraint(Sketcher.Constraint("PointOnObject", 0, 3, -2))
sketch4.addConstraint(Sketcher.Constraint("Radius", 0, 17.500002))
sketch4.addConstraint(Sketcher.Constraint("DistanceX", 1, 2, 1, 1, 20.0))
sketch4.addConstraint(Sketcher.Constraint("DistanceY", 0, 3, -1, 1, 17.500002))
pocket1 = body2.newObject("PartDesign::Pocket", "Pocket")
pocket1.Profile = sketch4
pocket1.Length = 10
pocket1.Reversed = True
doc.recompute()

boolean = body2.newObject("PartDesign::Boolean", "Boolean")
boolean.Type = "Fuse"
boolean.addObjects([body])

doc.recompute()
